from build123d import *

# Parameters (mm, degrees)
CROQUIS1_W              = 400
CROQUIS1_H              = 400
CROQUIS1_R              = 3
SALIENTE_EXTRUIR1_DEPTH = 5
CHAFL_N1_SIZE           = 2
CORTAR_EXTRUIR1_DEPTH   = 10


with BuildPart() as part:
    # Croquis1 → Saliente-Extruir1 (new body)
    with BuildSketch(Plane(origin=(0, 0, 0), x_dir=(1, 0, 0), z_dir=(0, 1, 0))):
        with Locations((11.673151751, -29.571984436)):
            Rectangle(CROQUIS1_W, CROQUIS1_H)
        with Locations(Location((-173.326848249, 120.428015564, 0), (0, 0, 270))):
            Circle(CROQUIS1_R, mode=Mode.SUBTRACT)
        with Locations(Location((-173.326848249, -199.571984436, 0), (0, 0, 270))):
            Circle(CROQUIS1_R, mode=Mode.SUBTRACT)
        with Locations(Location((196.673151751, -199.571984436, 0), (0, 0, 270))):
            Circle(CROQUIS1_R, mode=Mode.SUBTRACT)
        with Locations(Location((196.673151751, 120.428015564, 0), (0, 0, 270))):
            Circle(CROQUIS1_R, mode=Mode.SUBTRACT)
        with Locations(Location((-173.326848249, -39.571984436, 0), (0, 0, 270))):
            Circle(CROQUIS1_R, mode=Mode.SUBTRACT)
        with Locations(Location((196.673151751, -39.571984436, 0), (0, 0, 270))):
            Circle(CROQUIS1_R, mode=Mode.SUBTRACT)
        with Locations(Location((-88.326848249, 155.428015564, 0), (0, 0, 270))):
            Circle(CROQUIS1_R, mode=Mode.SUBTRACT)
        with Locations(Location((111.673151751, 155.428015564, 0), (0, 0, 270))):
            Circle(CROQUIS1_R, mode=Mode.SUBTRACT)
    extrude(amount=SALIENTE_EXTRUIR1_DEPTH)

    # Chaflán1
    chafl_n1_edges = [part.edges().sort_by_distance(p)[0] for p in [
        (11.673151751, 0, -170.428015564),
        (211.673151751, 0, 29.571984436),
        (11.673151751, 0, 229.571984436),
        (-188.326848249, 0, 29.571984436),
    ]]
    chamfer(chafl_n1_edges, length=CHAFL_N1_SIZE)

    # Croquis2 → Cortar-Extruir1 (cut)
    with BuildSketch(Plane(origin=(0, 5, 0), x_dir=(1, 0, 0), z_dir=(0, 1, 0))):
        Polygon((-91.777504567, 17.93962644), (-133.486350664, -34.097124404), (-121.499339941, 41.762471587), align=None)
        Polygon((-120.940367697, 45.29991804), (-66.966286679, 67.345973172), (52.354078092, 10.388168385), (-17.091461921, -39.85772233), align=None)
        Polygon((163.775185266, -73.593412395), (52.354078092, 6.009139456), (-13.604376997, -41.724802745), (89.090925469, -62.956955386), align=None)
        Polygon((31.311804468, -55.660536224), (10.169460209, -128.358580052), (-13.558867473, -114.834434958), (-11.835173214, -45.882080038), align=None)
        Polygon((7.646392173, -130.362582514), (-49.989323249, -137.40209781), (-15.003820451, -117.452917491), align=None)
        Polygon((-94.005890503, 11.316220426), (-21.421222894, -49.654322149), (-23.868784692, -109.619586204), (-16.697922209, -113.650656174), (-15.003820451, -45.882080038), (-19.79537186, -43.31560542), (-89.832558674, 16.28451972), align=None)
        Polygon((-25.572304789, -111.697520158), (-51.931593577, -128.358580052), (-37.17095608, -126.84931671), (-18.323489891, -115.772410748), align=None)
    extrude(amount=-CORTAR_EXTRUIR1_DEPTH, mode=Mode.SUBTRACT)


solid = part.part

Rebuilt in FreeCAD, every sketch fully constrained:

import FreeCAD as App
import Part
import Sketcher

V = App.Vector


def edges_at(feature, points):
    """Names of the edges that pass closest to the given points."""
    edges = feature.Shape.Edges
    near = lambda p: min(range(len(edges)), key=lambda i: edges[i].distToShape(Part.Vertex(*p))[0])
    return sorted({f"Edge{near(p) + 1}" for p in points})


def add_polygon(sketch, points):
    """Adds a closed chain of lines whose ends are joined by coincident constraints."""
    first, n = sketch.GeometryCount, len(points)
    for a, b in zip(points, points[1:] + points[:1]):
        sketch.addGeometry(Part.LineSegment(App.Vector(*a, 0), App.Vector(*b, 0)), False)
    for i in range(n):
        sketch.addConstraint(Sketcher.Constraint("Coincident", first + i, 2, first + (i + 1) % n, 1))

doc = App.newDocument("Part")
body = doc.addObject("PartDesign::Body", "Body")

# Sketch on XZ plane
sketch1 = body.newObject("Sketcher::SketchObject", "Sketch")
sketch1.AttachmentSupport = (doc.getObject("XZ_Plane"), [""])
sketch1.MapMode = "FlatFace"
add_polygon(sketch1, [(-188.3, -170.4), (-188.3, 229.6), (211.7, 229.6), (211.7, -170.4)])  # lines 0-3
sketch1.addGeometry(Part.Circle(V(-173.3, 199.6, 0), V(0, 0, 1), 3), False)  # 4
sketch1.addGeometry(Part.Circle(V(-173.3, 39.6, 0), V(0, 0, 1), 3), False)  # 5
sketch1.addGeometry(Part.Circle(V(196.7, 199.6, 0), V(0, 0, 1), 3), False)  # 6
sketch1.addGeometry(Part.Circle(V(196.7, 39.6, 0), V(0, 0, 1), 3), False)  # 7
sketch1.addGeometry(Part.Circle(V(-173.3, -120.4, 0), V(0, 0, 1), 3), False)  # 8
sketch1.addGeometry(Part.Circle(V(-88.3, -155.4, 0), V(0, 0, 1), 3), False)  # 9
sketch1.addGeometry(Part.Circle(V(111.7, -155.4, 0), V(0, 0, 1), 3), False)  # 10
sketch1.addGeometry(Part.Circle(V(196.7, -120.4, 0), V(0, 0, 1), 3), False)  # 11
sketch1.addConstraint(Sketcher.Constraint("Vertical", 0))
sketch1.addConstraint(Sketcher.Constraint("Horizontal", 1))
sketch1.addConstraint(Sketcher.Constraint("Vertical", 2))
sketch1.addConstraint(Sketcher.Constraint("Horizontal", 3))
sketch1.addConstraint(Sketcher.Constraint("Equal", 4, 5))
sketch1.addConstraint(Sketcher.Constraint("Equal", 5, 6))
sketch1.addConstraint(Sketcher.Constraint("Equal", 6, 7))
sketch1.addConstraint(Sketcher.Constraint("Equal", 7, 8))
sketch1.addConstraint(Sketcher.Constraint("Equal", 8, 9))
sketch1.addConstraint(Sketcher.Constraint("Equal", 9, 10))
sketch1.addConstraint(Sketcher.Constraint("Equal", 10, 11))
sketch1.addConstraint(Sketcher.Constraint("Horizontal", 4, 3, 6, 3))
sketch1.addConstraint(Sketcher.Constraint("Horizontal", 5, 3, 7, 3))
sketch1.addConstraint(Sketcher.Constraint("Horizontal", 9, 3, 10, 3))
sketch1.addConstraint(Sketcher.Constraint("Horizontal", 8, 3, 11, 3))
sketch1.addConstraint(Sketcher.Constraint("Vertical", 4, 3, 5, 3))
sketch1.addConstraint(Sketcher.Constraint("Vertical", 6, 3, 7, 3))
sketch1.addConstraint(Sketcher.Constraint("Vertical", 5, 3, 8, 3))
sketch1.addConstraint(Sketcher.Constraint("Vertical", 7, 3, 11, 3))
sketch1.addConstraint(Sketcher.Constraint("Equal", 3, 0))
sketch1.addConstraint(Sketcher.Constraint("Diameter", 4, 6.0))
sketch1.addConstraint(Sketcher.Constraint("DistanceX", 1, 1, 1, 2, 400.0))
sketch1.addConstraint(Sketcher.Constraint("DistanceY", 5, 3, 4, 3, 160.0))
sketch1.addConstraint(Sketcher.Constraint("DistanceX", 4, 3, 6, 3, 370.0))
sketch1.addConstraint(Sketcher.Constraint("DistanceY", 8, 3, 5, 3, 160.0))
sketch1.addConstraint(Sketcher.Constraint("DistanceX", 8, 3, 9, 3, 85.0))
sketch1.addConstraint(Sketcher.Constraint("DistanceY", 9, 3, 8, 3, 35.0))
sketch1.addConstraint(Sketcher.Constraint("DistanceX", 9, 3, 10, 3, 200.0))
sketch1.addConstraint(Sketcher.Constraint("DistanceX", 0, 2, 4, 3, 15.0))
sketch1.addConstraint(Sketcher.Constraint("DistanceY", 4, 3, 0, 2, 30.0))
sketch1.addConstraint(Sketcher.Constraint("DistanceX", 4, 3, -1, 1, 173.326848))
sketch1.addConstraint(Sketcher.Constraint("DistanceY", -1, 1, 4, 3, 199.571984))
pad1 = body.newObject("PartDesign::Pad", "Pad")
pad1.Profile = sketch1
pad1.Length = 5
pad1.Reversed = True
doc.recompute()

chamfer = body.newObject("PartDesign::Chamfer", "Chamfer")
chamfer.Base = (pad1, edges_at(pad1, [
    (11.673, 0, -170.428),
    (211.673, 0, 29.572),
    (11.673, 0, 229.572),
    (-188.327, 0, 29.572),
]))
chamfer.Size = 2

# Sketch on XZ plane
sketch2 = body.newObject("Sketcher::SketchObject", "Sketch001")
sketch2.AttachmentSupport = (doc.getObject("XZ_Plane"), [""])
sketch2.MapMode = "FlatFace"
sketch2.AttachmentOffset = App.Placement(V(0, 0, -5), App.Rotation())
add_polygon(sketch2, [(-133.486351, 34.097124), (-91.777505, -17.939626), (-121.49934, -41.762472)])  # lines 0-2
add_polygon(sketch2, [(-66.966287, -67.345973), (-120.940368, -45.299918), (-17.091462, 39.857722), (52.354078, -10.388168)])  # lines 3-6
add_polygon(sketch2, [(163.775185, 73.593412), (52.354078, -6.009139), (-13.604377, 41.724803), (89.090925, 62.956955)])  # lines 7-10
add_polygon(sketch2, [(10.16946, 128.35858), (31.311804, 55.660536), (-11.835173, 45.88208), (-13.558867, 114.834435)])  # lines 11-14
add_polygon(sketch2, [(-49.989323, 137.402098), (7.646392, 130.362583), (-15.00382, 117.452917)])  # lines 15-17
add_polygon(sketch2, [(-94.005891, -11.31622), (-21.421223, 49.654322), (-23.868785, 109.619586), (-16.697922, 113.650656), (-15.00382, 45.88208), (-19.795372, 43.315605), (-89.832559, -16.28452)])  # lines 18-24
add_polygon(sketch2, [(-25.572305, 111.69752), (-51.931594, 128.35858), (-37.170956, 126.849317), (-18.32349, 115.772411)])  # lines 25-28
sketch2.addConstraint(Sketcher.Constraint("Distance", 11, 75.710001))
sketch2.addConstraint(Sketcher.Constraint("Distance", 9, 104.867199))
sketch2.addConstraint(Sketcher.Constraint("Distance", 22, 5.435601))
sketch2.addConstraint(Sketcher.Constraint("DistanceY", 6, 2, 1, 2, 25.583502))
sketch2.addConstraint(Sketcher.Constraint("DistanceY", 11, 2, 13, 2, 59.173899))
sketch2.addConstraint(Sketcher.Constraint("DistanceY", 12, 2, 14, 2, 82.4765))
sketch2.addConstraint(Sketcher.Constraint("DistanceY", 4, 2, 18, 2, 9.7966))
sketch2.addConstraint(Sketcher.Constraint("DistanceX", 20, 2, 16, 2, 1.694102))
sketch2.addConstraint(Sketcher.Constraint("DistanceX", 22, 2, 12, 2, 7.960199))
sketch2.addConstraint(Sketcher.Constraint("DistanceY", 3, 2, 23, 2, 29.015398))
sketch2.addConstraint(Sketcher.Constraint("DistanceY", 23, 2, 24, 2, 4.968299))
sketch2.addConstraint(Sketcher.Constraint("DistanceY", 16, 2, 26, 2, 9.396399))
sketch2.addConstraint(Sketcher.Constraint("Distance", 6, 132.217779))
sketch2.addConstraint(Sketcher.Constraint("Distance", 7, 136.935128))
sketch2.addConstraint(Sketcher.Constraint("Distance", 8, 81.41896))
sketch2.addConstraint(Sketcher.Constraint("Distance", 14, 27.31183))
sketch2.addConstraint(Sketcher.Constraint("Distance", 15, 58.06402))
sketch2.addConstraint(Sketcher.Constraint("Distance", 23, 91.964028))
sketch2.addConstraint(Sketcher.Constraint("Distance", 27, 21.861492))
sketch2.addConstraint(Sketcher.Constraint("Distance", 28, 8.315651))
sketch2.addConstraint(Sketcher.Constraint("DistanceX", 1, 2, -1, 1, 121.49934))
sketch2.addConstraint(Sketcher.Constraint("DistanceY", 1, 2, -1, 1, 41.762472))
sketch2.addConstraint(Sketcher.Constraint("DistanceX", 2, 2, -1, 1, 133.486351))
sketch2.addConstraint(Sketcher.Constraint("DistanceY", 3, 2, -1, 1, 45.299918))
sketch2.addConstraint(Sketcher.Constraint("DistanceX", 4, 2, -1, 1, 17.091462))
sketch2.addConstraint(Sketcher.Constraint("DistanceX", -1, 1, 5, 2, 52.354078))
sketch2.addConstraint(Sketcher.Constraint("DistanceY", 5, 2, -1, 1, 10.388168))
sketch2.addConstraint(Sketcher.Constraint("DistanceX", -1, 1, 7, 2, 52.354078))
sketch2.addConstraint(Sketcher.Constraint("DistanceY", 7, 2, -1, 1, 6.009139))
sketch2.addConstraint(Sketcher.Constraint("DistanceY", -1, 1, 12, 2, 45.88208))
sketch2.addConstraint(Sketcher.Constraint("DistanceX", -1, 1, 14, 2, 10.16946))
sketch2.addConstraint(Sketcher.Constraint("DistanceX", 16, 2, -1, 1, 15.00382))
sketch2.addConstraint(Sketcher.Constraint("DistanceX", 21, 2, -1, 1, 15.00382))
sketch2.addConstraint(Sketcher.Constraint("DistanceY", -1, 1, 21, 2, 45.88208))
sketch2.addConstraint(Sketcher.Constraint("DistanceX", 22, 2, -1, 1, 19.795372))
sketch2.addConstraint(Sketcher.Constraint("DistanceX", 24, 2, -1, 1, 94.005891))
sketch2.addConstraint(Sketcher.Constraint("DistanceY", -1, 1, 25, 2, 128.35858))
sketch2.addConstraint(Sketcher.Constraint("DistanceX", 27, 2, -1, 1, 18.32349))
sketch2.addConstraint(Sketcher.Constraint("DistanceY", -1, 1, 27, 2, 115.772411))
sketch2.addConstraint(Sketcher.Constraint("DistanceY", -1, 1, 28, 2, 111.69752))
sketch2.addConstraint(Sketcher.Constraint("DistanceY", 0, 2, 2, 2, 52.036751))
sketch2.addConstraint(Sketcher.Constraint("DistanceY", 3, 2, 0, 2, 27.360292))
sketch2.addConstraint(Sketcher.Constraint("DistanceY", 0, 2, 4, 2, 57.797349))
sketch2.addConstraint(Sketcher.Constraint("DistanceX", 3, 2, 6, 2, 53.974081))
sketch2.addConstraint(Sketcher.Constraint("DistanceY", 4, 2, 8, 2, 1.86708))
sketch2.addConstraint(Sketcher.Constraint("DistanceX", 0, 2, 9, 2, 180.86843))
sketch2.addConstraint(Sketcher.Constraint("DistanceY", 0, 2, 9, 2, 80.896582))
sketch2.addConstraint(Sketcher.Constraint("DistanceX", 9, 2, 10, 2, 74.68426))
sketch2.addConstraint(Sketcher.Constraint("DistanceX", 8, 2, 11, 2, 44.916181))
sketch2.addConstraint(Sketcher.Constraint("DistanceX", 15, 2, 14, 2, 2.523068))
sketch2.addConstraint(Sketcher.Constraint("DistanceY", 8, 2, 15, 2, 88.63778))
sketch2.addConstraint(Sketcher.Constraint("DistanceY", 16, 2, 17, 2, 19.94918))
sketch2.addConstraint(Sketcher.Constraint("DistanceX", 17, 2, 12, 2, 38.15415))
sketch2.addConstraint(Sketcher.Constraint("DistanceX", 18, 2, 12, 2, 9.58605))
sketch2.addConstraint(Sketcher.Constraint("DistanceY", 19, 2, 13, 2, 5.214849))
sketch2.addConstraint(Sketcher.Constraint("DistanceX", 17, 2, 19, 2, 26.120539))
sketch2.addConstraint(Sketcher.Constraint("DistanceY", 20, 2, 13, 2, 1.183779))
sketch2.addConstraint(Sketcher.Constraint("DistanceX", 25, 2, 17, 2, 1.94227))
pocket1 = body.newObject("PartDesign::Pocket", "Pocket")
pocket1.Profile = sketch2
pocket1.Length = 10
pocket1.Reversed = True

doc.recompute()
